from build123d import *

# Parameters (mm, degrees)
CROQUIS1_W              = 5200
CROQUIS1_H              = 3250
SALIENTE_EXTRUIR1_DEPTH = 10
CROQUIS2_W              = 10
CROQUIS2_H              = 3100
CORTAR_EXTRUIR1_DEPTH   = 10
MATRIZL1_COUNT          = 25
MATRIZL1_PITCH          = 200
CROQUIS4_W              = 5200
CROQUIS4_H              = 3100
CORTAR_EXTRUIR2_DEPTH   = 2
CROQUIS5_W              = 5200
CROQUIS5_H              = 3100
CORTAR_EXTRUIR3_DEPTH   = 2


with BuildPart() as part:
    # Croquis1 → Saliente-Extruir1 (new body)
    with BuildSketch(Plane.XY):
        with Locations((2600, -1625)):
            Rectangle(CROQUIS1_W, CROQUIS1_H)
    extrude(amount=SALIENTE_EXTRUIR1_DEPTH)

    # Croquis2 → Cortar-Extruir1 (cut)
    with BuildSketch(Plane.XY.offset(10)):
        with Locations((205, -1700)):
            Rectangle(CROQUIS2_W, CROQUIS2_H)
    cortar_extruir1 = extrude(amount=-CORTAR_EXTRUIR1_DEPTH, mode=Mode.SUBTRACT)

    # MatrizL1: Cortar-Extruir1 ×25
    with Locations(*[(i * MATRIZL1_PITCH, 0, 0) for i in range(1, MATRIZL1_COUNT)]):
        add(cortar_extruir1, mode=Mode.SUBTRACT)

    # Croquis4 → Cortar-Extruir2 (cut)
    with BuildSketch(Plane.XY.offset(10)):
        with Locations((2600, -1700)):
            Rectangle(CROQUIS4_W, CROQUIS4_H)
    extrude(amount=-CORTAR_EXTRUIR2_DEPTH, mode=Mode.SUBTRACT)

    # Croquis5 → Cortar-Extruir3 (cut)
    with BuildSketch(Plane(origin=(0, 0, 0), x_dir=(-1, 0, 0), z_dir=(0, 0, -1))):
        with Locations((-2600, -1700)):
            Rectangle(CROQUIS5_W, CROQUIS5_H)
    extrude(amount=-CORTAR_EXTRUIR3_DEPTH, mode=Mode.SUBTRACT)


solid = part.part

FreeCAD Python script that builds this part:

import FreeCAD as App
import Part
import Sketcher

V = App.Vector

doc = App.newDocument("Part")
params = doc.addObject("Spreadsheet::Sheet", "Params")
for row, (alias, value) in enumerate([
    ("sketch1_width", "5200 mm"),
    ("sketch1_height", "3250 mm"),
    ("pad1_length", "10 mm"),
    ("sketch2_width", "10 mm"),
    ("sketch2_height", "3100 mm"),
    ("pocket1_length", "10 mm"),
    ("linearpattern_pitch", "200 mm"),
    ("sketch3_width", "5200 mm"),
    ("sketch3_height", "3100 mm"),
    ("pocket2_length", "2 mm"),
    ("sketch4_width", "5200 mm"),
    ("sketch4_height", "3100 mm"),
    ("pocket3_length", "2 mm"),
], start=1):
    params.set(f"A{row}", alias)
    params.set(f"B{row}", "=" + value)
    params.setAlias(f"B{row}", alias)

body = doc.addObject("PartDesign::Body", "Body")

# Sketch on XY plane
sketch1 = body.newObject("Sketcher::SketchObject", "Sketch")
sketch1.AttachmentSupport = (doc.getObject("XY_Plane"), [""])
sketch1.MapMode = "FlatFace"
sketch1.addGeometry(Part.LineSegment(V(0, 0, 0), V(0, -3250, 0)), False)
sketch1.addGeometry(Part.LineSegment(V(0, -3250, 0), V(5200, -3250, 0)), False)
sketch1.addGeometry(Part.LineSegment(V(5200, -3250, 0), V(5200, 0, 0)), False)
sketch1.addGeometry(Part.LineSegment(V(5200, 0, 0), V(0, 0, 0)), False)
sketch1.addConstraint(Sketcher.Constraint("Coincident", 0, 2, 1, 1))
sketch1.addConstraint(Sketcher.Constraint("Coincident", 1, 2, 2, 1))
sketch1.addConstraint(Sketcher.Constraint("Coincident", 2, 2, 3, 1))
sketch1.addConstraint(Sketcher.Constraint("Coincident", 3, 2, 0, 1))
sketch1.addConstraint(Sketcher.Constraint("Vertical", 0))
sketch1.addConstraint(Sketcher.Constraint("Horizontal", 1))
sketch1.addConstraint(Sketcher.Constraint("Vertical", 2))
sketch1.addConstraint(Sketcher.Constraint("Horizontal", 3))
sketch1.addConstraint(Sketcher.Constraint("Coincident", 3, 2, -1, 1))
sketch1.addConstraint(Sketcher.Constraint("DistanceX", 1, 1, 1, 2, 5200.0))
sketch1.addConstraint(Sketcher.Constraint("DistanceY", 0, 2, 0, 1, 3250.0))
sketch1.setExpression("Constraints[9]", "Params.sketch1_width")
sketch1.setExpression("Constraints[10]", "Params.sketch1_height")
pad1 = body.newObject("PartDesign::Pad", "Pad")
pad1.Profile = sketch1
pad1.setExpression("Length", "Params.pad1_length")

# Sketch on XY plane
sketch2 = body.newObject("Sketcher::SketchObject", "Sketch001")
sketch2.AttachmentSupport = (doc.getObject("XY_Plane"), [""])
sketch2.MapMode = "FlatFace"
sketch2.AttachmentOffset = App.Placement(V(0, 0, 10), App.Rotation())
sketch2.addGeometry(Part.LineSegment(V(200, -150, 0), V(200, -3250, 0)), False)
sketch2.addGeometry(Part.LineSegment(V(200, -3250, 0), V(210, -3250, 0)), False)
sketch2.addGeometry(Part.LineSegment(V(210, -3250, 0), V(210, -150, 0)), False)
sketch2.addGeometry(Part.LineSegment(V(210, -150, 0), V(200, -150, 0)), False)
sketch2.addConstraint(Sketcher.Constraint("Coincident", 0, 2, 1, 1))
sketch2.addConstraint(Sketcher.Constraint("Coincident", 1, 2, 2, 1))
sketch2.addConstraint(Sketcher.Constraint("Coincident", 2, 2, 3, 1))
sketch2.addConstraint(Sketcher.Constraint("Coincident", 3, 2, 0, 1))
sketch2.addConstraint(Sketcher.Constraint("Vertical", 0))
sketch2.addConstraint(Sketcher.Constraint("Horizontal", 1))
sketch2.addConstraint(Sketcher.Constraint("Vertical", 2))
sketch2.addConstraint(Sketcher.Constraint("Horizontal", 3))
sketch2.addConstraint(Sketcher.Constraint("DistanceX", 1, 1, 1, 2, 10.0))
sketch2.addConstraint(Sketcher.Constraint("DistanceY", 0, 2, 0, 1, 3100.0))
sketch2.addConstraint(Sketcher.Constraint("DistanceX", -1, 1, 0, 2, 200.0))
sketch2.addConstraint(Sketcher.Constraint("DistanceY", 0, 2, -1, 1, 3250.0))
sketch2.setExpression("Constraints[8]", "Params.sketch2_width")
sketch2.setExpression("Constraints[9]", "Params.sketch2_height")
pocket1 = body.newObject("PartDesign::Pocket", "Pocket")
pocket1.Profile = sketch2
pocket1.setExpression("Length", "Params.pocket1_length")
doc.recompute()

linearpattern = body.newObject("PartDesign::LinearPattern", "LinearPattern")
linearpattern.Originals = [pocket1]
linearpattern.Direction = (doc.getObject("X_Axis"), [""])
linearpattern.Mode = "offset"
linearpattern.setExpression("Offset", "Params.linearpattern_pitch")
linearpattern.Occurrences = 25
body.Tip = linearpattern

# Sketch on XY plane
sketch3 = body.newObject("Sketcher::SketchObject", "Sketch002")
sketch3.AttachmentSupport = (doc.getObject("XY_Plane"), [""])
sketch3.MapMode = "FlatFace"
sketch3.AttachmentOffset = App.Placement(V(0, 0, 10), App.Rotation())
sketch3.addGeometry(Part.LineSegment(V(0, -150, 0), V(0, -3250, 0)), False)
sketch3.addGeometry(Part.LineSegment(V(0, -3250, 0), V(5200, -3250, 0)), False)
sketch3.addGeometry(Part.LineSegment(V(5200, -3250, 0), V(5200, -150, 0)), False)
sketch3.addGeometry(Part.LineSegment(V(5200, -150, 0), V(0, -150, 0)), False)
sketch3.addConstraint(Sketcher.Constraint("Coincident", 0, 2, 1, 1))
sketch3.addConstraint(Sketcher.Constraint("Coincident", 1, 2, 2, 1))
sketch3.addConstraint(Sketcher.Constraint("Coincident", 2, 2, 3, 1))
sketch3.addConstraint(Sketcher.Constraint("Coincident", 3, 2, 0, 1))
sketch3.addConstraint(Sketcher.Constraint("Vertical", 0))
sketch3.addConstraint(Sketcher.Constraint("Horizontal", 1))
sketch3.addConstraint(Sketcher.Constraint("Vertical", 2))
sketch3.addConstraint(Sketcher.Constraint("Horizontal", 3))
sketch3.addConstraint(Sketcher.Constraint("PointOnObject", 0, 2, -2))
sketch3.addConstraint(Sketcher.Constraint("DistanceX", 1, 1, 1, 2, 5200.0))
sketch3.addConstraint(Sketcher.Constraint("DistanceY", 0, 2, 0, 1, 3100.0))
sketch3.addConstraint(Sketcher.Constraint("DistanceY", 0, 2, -1, 1, 3250.0))
sketch3.setExpression("Constraints[9]", "Params.sketch3_width")
sketch3.setExpression("Constraints[10]", "Params.sketch3_height")
pocket2 = body.newObject("PartDesign::Pocket", "Pocket001")
pocket2.Profile = sketch3
pocket2.setExpression("Length", "Params.pocket2_length")

# Sketch on XY plane
sketch4 = body.newObject("Sketcher::SketchObject", "Sketch003")
sketch4.AttachmentSupport = (doc.getObject("XY_Plane"), [""])
sketch4.MapMode = "FlatFace"
sketch4.addGeometry(Part.LineSegment(V(5200, -150, 0), V(5200, -3250, 0)), False)
sketch4.addGeometry(Part.LineSegment(V(5200, -3250, 0), V(0, -3250, 0)), False)
sketch4.addGeometry(Part.LineSegment(V(0, -3250, 0), V(0, -150, 0)), False)
sketch4.addGeometry(Part.LineSegment(V(0, -150, 0), V(5200, -150, 0)), False)
sketch4.addConstraint(Sketcher.Constraint("Coincident", 0, 2, 1, 1))
sketch4.addConstraint(Sketcher.Constraint("Coincident", 1, 2, 2, 1))
sketch4.addConstraint(Sketcher.Constraint("Coincident", 2, 2, 3, 1))
sketch4.addConstraint(Sketcher.Constraint("Coincident", 3, 2, 0, 1))
sketch4.addConstraint(Sketcher.Constraint("Vertical", 0))
sketch4.addConstraint(Sketcher.Constraint("Horizontal", 1))
sketch4.addConstraint(Sketcher.Constraint("Vertical", 2))
sketch4.addConstraint(Sketcher.Constraint("Horizontal", 3))
sketch4.addConstraint(Sketcher.Constraint("PointOnObject", 1, 2, -2))
sketch4.addConstraint(Sketcher.Constraint("DistanceX", 1, 2, 1, 1, 5200.0))
sketch4.addConstraint(Sketcher.Constraint("DistanceY", 0, 2, 0, 1, 3100.0))
sketch4.addConstraint(Sketcher.Constraint("DistanceY", 0, 2, -1, 1, 3250.0))
sketch4.setExpression("Constraints[9]", "Params.sketch4_width")
sketch4.setExpression("Constraints[10]", "Params.sketch4_height")
pocket3 = body.newObject("PartDesign::Pocket", "Pocket002")
pocket3.Profile = sketch4
pocket3.setExpression("Length", "Params.pocket3_length")
pocket3.Reversed = True

doc.recompute()
